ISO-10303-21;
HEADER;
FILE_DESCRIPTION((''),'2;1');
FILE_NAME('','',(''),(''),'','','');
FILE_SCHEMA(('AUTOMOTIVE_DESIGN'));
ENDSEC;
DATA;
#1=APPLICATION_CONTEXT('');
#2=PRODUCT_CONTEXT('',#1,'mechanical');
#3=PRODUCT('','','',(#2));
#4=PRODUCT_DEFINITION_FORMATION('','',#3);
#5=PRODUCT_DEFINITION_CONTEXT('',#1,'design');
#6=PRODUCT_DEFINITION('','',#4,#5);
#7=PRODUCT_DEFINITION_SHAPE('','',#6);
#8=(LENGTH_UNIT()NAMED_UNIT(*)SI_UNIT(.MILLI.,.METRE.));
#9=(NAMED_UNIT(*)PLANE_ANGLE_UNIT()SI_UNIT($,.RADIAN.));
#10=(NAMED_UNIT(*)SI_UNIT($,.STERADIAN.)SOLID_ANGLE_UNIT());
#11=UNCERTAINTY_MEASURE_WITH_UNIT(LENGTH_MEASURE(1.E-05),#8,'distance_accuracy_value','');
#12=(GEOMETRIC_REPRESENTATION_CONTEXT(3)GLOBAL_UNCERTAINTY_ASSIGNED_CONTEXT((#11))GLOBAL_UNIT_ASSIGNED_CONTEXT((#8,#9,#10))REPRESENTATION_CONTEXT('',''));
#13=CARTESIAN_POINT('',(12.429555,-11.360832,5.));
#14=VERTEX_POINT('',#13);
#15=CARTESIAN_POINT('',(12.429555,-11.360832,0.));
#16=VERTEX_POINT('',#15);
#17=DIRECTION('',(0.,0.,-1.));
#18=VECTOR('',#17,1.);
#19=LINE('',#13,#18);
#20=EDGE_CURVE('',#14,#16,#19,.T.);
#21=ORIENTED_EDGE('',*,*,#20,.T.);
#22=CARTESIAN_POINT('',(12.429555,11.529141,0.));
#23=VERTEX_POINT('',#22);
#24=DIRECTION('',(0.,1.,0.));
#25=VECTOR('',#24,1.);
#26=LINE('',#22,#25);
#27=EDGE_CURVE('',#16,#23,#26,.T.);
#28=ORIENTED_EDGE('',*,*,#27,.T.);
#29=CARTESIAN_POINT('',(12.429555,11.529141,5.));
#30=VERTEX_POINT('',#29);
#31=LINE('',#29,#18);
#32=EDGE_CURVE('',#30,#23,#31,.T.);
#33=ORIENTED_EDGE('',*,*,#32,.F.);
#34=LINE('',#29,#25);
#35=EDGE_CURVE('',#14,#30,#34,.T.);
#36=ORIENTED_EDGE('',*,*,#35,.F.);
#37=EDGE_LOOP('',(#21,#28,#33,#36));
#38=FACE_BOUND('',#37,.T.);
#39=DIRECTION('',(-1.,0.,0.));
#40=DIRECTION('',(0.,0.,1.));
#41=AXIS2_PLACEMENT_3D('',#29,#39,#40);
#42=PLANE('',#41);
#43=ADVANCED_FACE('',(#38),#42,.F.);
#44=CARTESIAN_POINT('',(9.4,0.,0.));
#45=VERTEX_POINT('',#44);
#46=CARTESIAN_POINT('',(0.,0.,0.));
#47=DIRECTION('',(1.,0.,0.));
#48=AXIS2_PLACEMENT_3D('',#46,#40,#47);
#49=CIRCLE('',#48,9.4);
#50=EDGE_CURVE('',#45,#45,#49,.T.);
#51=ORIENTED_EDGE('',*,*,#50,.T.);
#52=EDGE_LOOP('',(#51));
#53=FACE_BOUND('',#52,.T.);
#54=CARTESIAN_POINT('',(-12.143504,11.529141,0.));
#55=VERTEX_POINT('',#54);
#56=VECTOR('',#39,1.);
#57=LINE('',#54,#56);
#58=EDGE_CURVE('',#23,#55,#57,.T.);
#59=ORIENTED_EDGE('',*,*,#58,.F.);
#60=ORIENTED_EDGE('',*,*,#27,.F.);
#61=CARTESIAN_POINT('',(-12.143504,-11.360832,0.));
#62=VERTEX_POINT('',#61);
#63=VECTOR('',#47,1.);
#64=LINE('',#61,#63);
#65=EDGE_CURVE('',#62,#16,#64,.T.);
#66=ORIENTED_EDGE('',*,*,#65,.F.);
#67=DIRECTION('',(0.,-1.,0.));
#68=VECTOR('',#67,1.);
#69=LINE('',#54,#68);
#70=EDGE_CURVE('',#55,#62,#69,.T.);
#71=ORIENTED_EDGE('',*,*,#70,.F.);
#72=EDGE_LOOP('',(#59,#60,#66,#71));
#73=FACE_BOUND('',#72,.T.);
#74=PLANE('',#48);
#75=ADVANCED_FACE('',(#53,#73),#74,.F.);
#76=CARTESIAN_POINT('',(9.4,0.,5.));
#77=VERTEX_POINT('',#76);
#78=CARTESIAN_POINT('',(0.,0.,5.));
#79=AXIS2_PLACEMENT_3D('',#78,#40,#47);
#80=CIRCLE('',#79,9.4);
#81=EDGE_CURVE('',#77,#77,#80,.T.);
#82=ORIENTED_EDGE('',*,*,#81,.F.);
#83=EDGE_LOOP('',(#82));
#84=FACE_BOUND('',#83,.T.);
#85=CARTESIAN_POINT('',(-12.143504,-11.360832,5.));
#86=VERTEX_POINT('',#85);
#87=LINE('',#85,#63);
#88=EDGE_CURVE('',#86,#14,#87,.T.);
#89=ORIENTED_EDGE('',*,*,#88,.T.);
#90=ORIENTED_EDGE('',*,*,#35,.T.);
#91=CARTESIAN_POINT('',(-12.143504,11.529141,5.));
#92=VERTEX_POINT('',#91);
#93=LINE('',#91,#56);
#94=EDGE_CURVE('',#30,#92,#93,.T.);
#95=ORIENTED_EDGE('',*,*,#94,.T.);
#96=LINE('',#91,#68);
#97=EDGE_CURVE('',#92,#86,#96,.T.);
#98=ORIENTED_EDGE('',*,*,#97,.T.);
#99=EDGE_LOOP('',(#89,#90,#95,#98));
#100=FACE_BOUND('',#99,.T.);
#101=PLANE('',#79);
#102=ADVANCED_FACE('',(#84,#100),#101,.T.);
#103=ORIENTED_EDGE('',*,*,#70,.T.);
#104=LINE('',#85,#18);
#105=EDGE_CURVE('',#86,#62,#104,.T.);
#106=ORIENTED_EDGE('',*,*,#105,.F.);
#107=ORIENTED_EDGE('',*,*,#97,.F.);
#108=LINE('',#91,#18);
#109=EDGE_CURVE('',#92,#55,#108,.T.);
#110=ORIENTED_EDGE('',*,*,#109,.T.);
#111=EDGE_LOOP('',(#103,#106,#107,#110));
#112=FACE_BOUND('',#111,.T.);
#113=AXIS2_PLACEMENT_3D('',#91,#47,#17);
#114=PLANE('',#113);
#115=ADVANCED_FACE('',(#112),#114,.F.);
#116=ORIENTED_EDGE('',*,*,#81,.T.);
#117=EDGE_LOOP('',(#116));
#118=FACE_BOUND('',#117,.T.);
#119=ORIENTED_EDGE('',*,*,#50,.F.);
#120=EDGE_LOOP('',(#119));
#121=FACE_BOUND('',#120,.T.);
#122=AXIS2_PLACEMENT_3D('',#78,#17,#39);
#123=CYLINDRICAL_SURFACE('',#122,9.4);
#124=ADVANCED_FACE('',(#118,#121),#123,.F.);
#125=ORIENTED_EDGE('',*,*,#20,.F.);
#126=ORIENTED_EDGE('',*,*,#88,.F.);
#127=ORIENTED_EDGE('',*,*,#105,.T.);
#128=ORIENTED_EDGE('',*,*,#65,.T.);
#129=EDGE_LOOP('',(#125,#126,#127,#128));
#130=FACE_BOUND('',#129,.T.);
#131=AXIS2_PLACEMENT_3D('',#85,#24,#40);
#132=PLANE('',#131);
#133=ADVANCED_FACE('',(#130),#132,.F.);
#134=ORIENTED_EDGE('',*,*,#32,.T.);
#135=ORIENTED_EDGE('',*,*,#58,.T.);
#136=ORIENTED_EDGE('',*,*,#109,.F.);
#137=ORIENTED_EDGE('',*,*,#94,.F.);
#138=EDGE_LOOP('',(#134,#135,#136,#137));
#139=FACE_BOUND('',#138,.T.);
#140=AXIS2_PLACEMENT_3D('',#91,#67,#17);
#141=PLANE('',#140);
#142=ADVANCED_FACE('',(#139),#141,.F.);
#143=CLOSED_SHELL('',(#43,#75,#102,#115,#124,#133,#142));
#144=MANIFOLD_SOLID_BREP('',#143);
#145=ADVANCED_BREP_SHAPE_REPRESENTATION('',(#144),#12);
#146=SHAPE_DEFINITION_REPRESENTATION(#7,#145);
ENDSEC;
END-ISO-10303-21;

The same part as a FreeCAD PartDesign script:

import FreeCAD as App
import Part
import Sketcher

V = App.Vector
Q = App.Units.Quantity

doc = App.newDocument("Part")
body = doc.addObject("PartDesign::Body", "Body")

# Sketch on XY plane
sketch1 = body.newObject("Sketcher::SketchObject", "Sketch")
sketch1.AttachmentSupport = (doc.getObject("XY_Plane"), [""])
sketch1.MapMode = "FlatFace"
sketch1.addGeometry([
    Part.LineSegment(V(-12, 12, 0), V(-12, -11, 0)),  # 0
    Part.LineSegment(V(-12, -11, 0), V(12, -11, 0)),  # 1
    Part.LineSegment(V(12, -11, 0), V(12, 12, 0)),  # 2
    Part.LineSegment(V(12, 12, 0), V(-12, 12, 0)),  # 3
    Part.Circle(V(0, 0, 0), V(0, 0, 1), 9),  # 4
], False)
sketch1.addConstraint([
    Sketcher.Constraint("Coincident", 0, 2, 1, 1),
    Sketcher.Constraint("Coincident", 1, 2, 2, 1),
    Sketcher.Constraint("Coincident", 2, 2, 3, 1),
    Sketcher.Constraint("Coincident", 3, 2, 0, 1),
    Sketcher.Constraint("Vertical", 0),
    Sketcher.Constraint("Horizontal", 1),
    Sketcher.Constraint("Vertical", 2),
    Sketcher.Constraint("Horizontal", 3),
    Sketcher.Constraint("Coincident", 4, 3, -1, 1),
    Sketcher.Constraint("Diameter", 4, Q("18.8 mm")),
    Sketcher.Constraint("DistanceX", 1, 1, 1, 2, Q("24.57306 mm")),
    Sketcher.Constraint("DistanceY", 0, 2, 0, 1, Q("22.889973 mm")),
    Sketcher.Constraint("DistanceY", -1, 1, 2, 2, Q("11.529141 mm")),
    Sketcher.Constraint("DistanceX", 0, 2, -1, 1, Q("12.143504 mm")),
])
pad1 = body.newObject("PartDesign::Pad", "Pad")
pad1.Profile = sketch1
pad1.Length = 5

doc.recompute()
